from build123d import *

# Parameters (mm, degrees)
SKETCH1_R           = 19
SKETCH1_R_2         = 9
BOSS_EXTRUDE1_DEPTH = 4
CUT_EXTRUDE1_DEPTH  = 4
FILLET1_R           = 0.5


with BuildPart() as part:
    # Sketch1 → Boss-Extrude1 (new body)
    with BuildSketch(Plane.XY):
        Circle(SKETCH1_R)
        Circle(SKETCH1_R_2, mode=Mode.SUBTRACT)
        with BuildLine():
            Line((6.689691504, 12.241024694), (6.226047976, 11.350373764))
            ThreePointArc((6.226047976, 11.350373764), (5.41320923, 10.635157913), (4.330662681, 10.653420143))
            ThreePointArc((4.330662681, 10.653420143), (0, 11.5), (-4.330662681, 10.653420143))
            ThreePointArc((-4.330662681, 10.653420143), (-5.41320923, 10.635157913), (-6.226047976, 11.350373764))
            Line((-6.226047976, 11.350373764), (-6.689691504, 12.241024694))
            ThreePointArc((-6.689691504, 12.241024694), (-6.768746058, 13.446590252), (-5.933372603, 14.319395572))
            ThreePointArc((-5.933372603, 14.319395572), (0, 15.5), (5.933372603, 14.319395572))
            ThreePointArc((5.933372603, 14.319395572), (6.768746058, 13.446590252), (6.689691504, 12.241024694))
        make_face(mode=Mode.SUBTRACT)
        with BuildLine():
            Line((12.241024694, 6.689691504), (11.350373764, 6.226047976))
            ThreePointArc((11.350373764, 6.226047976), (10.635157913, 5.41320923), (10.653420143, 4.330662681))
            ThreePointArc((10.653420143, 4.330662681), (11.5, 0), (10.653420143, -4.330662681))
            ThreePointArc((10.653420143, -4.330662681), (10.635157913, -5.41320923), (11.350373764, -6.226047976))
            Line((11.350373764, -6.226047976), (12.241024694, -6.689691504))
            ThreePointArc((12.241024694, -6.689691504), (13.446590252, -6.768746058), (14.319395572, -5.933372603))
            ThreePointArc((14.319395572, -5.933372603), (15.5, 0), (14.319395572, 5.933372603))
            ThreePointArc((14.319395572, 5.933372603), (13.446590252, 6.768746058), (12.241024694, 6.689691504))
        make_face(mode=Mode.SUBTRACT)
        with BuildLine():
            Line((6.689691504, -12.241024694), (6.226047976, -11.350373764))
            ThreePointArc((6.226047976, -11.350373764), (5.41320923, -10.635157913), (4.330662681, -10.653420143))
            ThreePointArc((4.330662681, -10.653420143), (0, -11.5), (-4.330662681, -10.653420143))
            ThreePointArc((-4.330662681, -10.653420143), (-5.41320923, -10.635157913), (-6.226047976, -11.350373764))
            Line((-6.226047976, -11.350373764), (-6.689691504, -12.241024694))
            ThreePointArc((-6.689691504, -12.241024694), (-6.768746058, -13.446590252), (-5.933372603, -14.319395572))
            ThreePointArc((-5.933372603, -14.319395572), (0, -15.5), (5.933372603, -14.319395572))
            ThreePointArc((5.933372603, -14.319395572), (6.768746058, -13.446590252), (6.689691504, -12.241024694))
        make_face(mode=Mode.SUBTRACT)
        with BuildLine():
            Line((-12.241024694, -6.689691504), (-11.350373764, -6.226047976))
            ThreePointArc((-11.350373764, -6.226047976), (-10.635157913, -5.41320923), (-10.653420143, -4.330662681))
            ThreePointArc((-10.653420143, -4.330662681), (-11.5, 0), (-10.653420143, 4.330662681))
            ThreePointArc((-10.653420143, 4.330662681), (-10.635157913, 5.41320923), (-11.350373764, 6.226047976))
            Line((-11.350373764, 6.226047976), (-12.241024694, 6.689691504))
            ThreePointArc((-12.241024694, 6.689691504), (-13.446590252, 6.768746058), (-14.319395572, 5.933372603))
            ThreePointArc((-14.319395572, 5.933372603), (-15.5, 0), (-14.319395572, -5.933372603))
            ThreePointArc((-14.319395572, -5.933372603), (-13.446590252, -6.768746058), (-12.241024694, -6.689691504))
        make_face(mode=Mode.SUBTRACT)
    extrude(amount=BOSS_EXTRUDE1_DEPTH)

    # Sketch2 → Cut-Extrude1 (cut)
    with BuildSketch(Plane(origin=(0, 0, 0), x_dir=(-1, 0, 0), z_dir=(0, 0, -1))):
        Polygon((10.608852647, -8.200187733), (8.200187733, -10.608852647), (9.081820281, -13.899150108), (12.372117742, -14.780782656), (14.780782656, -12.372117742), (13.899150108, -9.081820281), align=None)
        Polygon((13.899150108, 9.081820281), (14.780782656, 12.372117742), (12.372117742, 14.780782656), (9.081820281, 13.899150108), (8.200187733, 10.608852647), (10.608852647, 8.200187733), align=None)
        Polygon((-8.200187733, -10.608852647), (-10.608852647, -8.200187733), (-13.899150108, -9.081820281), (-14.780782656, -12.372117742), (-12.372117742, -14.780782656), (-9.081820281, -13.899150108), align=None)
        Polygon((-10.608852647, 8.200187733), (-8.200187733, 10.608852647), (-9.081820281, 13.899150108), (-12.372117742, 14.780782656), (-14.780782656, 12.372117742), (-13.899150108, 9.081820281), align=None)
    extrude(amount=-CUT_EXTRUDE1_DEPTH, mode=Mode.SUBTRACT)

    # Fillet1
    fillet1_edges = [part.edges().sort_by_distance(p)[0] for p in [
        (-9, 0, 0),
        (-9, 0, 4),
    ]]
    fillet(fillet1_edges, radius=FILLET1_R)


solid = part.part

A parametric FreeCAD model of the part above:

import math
import FreeCAD as App
import Part
import Sketcher
from FreeCAD import Vector
Q = App.Units.Quantity


def edges_at(feature, points):
    """Names of the edges that pass closest to the given points."""
    edges = feature.Shape.Edges
    near = lambda p: min(range(len(edges)), key=lambda i: edges[i].distToShape(Part.Vertex(*p))[0])
    return sorted({f"Edge{near(p) + 1}" for p in points})

doc = App.newDocument("Part")
body = doc.addObject("PartDesign::Body", "Body")

# Sketch on XY plane
sketch1 = doc.addObject("Sketcher::SketchObject", "Sketch")
body.addObject(sketch1)
sketch1.AttachmentSupport = (doc.XY_Plane, [""])
sketch1.MapMode = "FlatFace"
sketch1.addGeometry(Part.Circle(Vector(0, 0, 0), Vector(0, 0, 1), 19), False)
sketch1.addGeometry(Part.LineSegment(Vector(6.2, -11.4, 0), Vector(6.7, -12.2, 0)), False)
sketch1.addGeometry(Part.ArcOfCircle(Part.Circle(Vector(5.4, -12.9, 0), Vector(0, 0, 1), 1.5), math.radians(-67), math.radians(28)), False)
sketch1.addGeometry(Part.ArcOfCircle(Part.Circle(Vector(0, 0, 0), Vector(0, 0, 1), 15.5), math.radians(-113), math.radians(-67)), False)
sketch1.addGeometry(Part.ArcOfCircle(Part.Circle(Vector(-5.4, -12.9, 0), Vector(0, 0, 1), 1.5), math.radians(152), math.radians(247)), False)
sketch1.addGeometry(Part.LineSegment(Vector(-6.7, -12.2, 0), Vector(-6.2, -11.4, 0)), False)
sketch1.addGeometry(Part.ArcOfCircle(Part.Circle(Vector(-4.9, -12, 0), Vector(0, 0, 1), 1.5), math.radians(68), math.radians(153)), False)
sketch1.addGeometry(Part.ArcOfCircle(Part.Circle(Vector(0, 0, 0), Vector(0, 0, 1), 11.5), math.radians(-112), math.radians(-68)), False)
sketch1.addGeometry(Part.ArcOfCircle(Part.Circle(Vector(4.9, -12, 0), Vector(0, 0, 1), 1.5), math.radians(27), math.radians(112)), False)
sketch1.addGeometry(Part.LineSegment(Vector(-11.4, -6.2, 0), Vector(-12.2, -6.7, 0)), False)
sketch1.addGeometry(Part.ArcOfCircle(Part.Circle(Vector(-12.9, -5.4, 0), Vector(0, 0, 1), 1.5), math.radians(-157), math.radians(-62)), False)
sketch1.addGeometry(Part.ArcOfCircle(Part.Circle(Vector(0, 0, 0), Vector(0, 0, 1), 15.5), math.radians(157), math.radians(203)), False)
sketch1.addGeometry(Part.ArcOfCircle(Part.Circle(Vector(-12.9, 5.4, 0), Vector(0, 0, 1), 1.5), math.radians(62), math.radians(157)), False)
sketch1.addGeometry(Part.LineSegment(Vector(-12.2, 6.7, 0), Vector(-11.4, 6.2, 0)), False)
sketch1.addGeometry(Part.ArcOfCircle(Part.Circle(Vector(-12, 4.9, 0), Vector(0, 0, 1), 1.5), math.radians(-22), math.radians(63)), False)
sketch1.addGeometry(Part.ArcOfCircle(Part.Circle(Vector(0, 0, 0), Vector(0, 0, 1), 11.5), math.radians(158), math.radians(202)), False)
sketch1.addGeometry(Part.ArcOfCircle(Part.Circle(Vector(-12, -4.9, 0), Vector(0, 0, 1), 1.5), math.radians(-63), math.radians(22)), False)
sketch1.addGeometry(Part.Circle(Vector(0, 0, 0), Vector(0, 0, 1), 9), False)
sketch1.addGeometry(Part.LineSegment(Vector(11.4, 6.2, 0), Vector(12.2, 6.7, 0)), False)
sketch1.addGeometry(Part.ArcOfCircle(Part.Circle(Vector(12.9, 5.4, 0), Vector(0, 0, 1), 1.5), math.radians(23), math.radians(118)), False)
sketch1.addGeometry(Part.ArcOfCircle(Part.Circle(Vector(0, 0, 0), Vector(0, 0, 1), 15.5), math.radians(-23), math.radians(23)), False)
sketch1.addGeometry(Part.ArcOfCircle(Part.Circle(Vector(12.9, -5.4, 0), Vector(0, 0, 1), 1.5), math.radians(-118), math.radians(-23)), False)
sketch1.addGeometry(Part.LineSegment(Vector(12.2, -6.7, 0), Vector(11.4, -6.2, 0)), False)
sketch1.addGeometry(Part.ArcOfCircle(Part.Circle(Vector(12, -4.9, 0), Vector(0, 0, 1), 1.5), math.radians(158), math.radians(243)), False)
sketch1.addGeometry(Part.ArcOfCircle(Part.Circle(Vector(0, 0, 0), Vector(0, 0, 1), 11.5), math.radians(-22), math.radians(22)), False)
sketch1.addGeometry(Part.ArcOfCircle(Part.Circle(Vector(12, 4.9, 0), Vector(0, 0, 1), 1.5), math.radians(117), math.radians(202)), False)
sketch1.addGeometry(Part.ArcOfCircle(Part.Circle(Vector(5.4, 12.9, 0), Vector(0, 0, 1), 1.5), math.radians(-28), math.radians(67)), False)
sketch1.addGeometry(Part.LineSegment(Vector(6.7, 12.2, 0), Vector(6.2, 11.4, 0)), False)
sketch1.addGeometry(Part.ArcOfCircle(Part.Circle(Vector(4.9, 12, 0), Vector(0, 0, 1), 1.5), math.radians(-112), math.radians(-27)), False)
sketch1.addGeometry(Part.ArcOfCircle(Part.Circle(Vector(0, 0, 0), Vector(0, 0, 1), 11.5), math.radians(68), math.radians(112)), False)
sketch1.addGeometry(Part.ArcOfCircle(Part.Circle(Vector(-4.9, 12, 0), Vector(0, 0, 1), 1.5), math.radians(-153), math.radians(-68)), False)
sketch1.addGeometry(Part.LineSegment(Vector(-6.2, 11.4, 0), Vector(-6.7, 12.2, 0)), False)
sketch1.addGeometry(Part.ArcOfCircle(Part.Circle(Vector(-5.4, 12.9, 0), Vector(0, 0, 1), 1.5), math.radians(113), math.radians(208)), False)
sketch1.addGeometry(Part.ArcOfCircle(Part.Circle(Vector(0, 0, 0), Vector(0, 0, 1), 15.5), math.radians(67), math.radians(113)), False)
sketch1.addConstraint(Sketcher.Constraint("Tangent", 1, 2, 2, 2))
sketch1.addConstraint(Sketcher.Constraint("Tangent", 2, 1, 3, 2))
sketch1.addConstraint(Sketcher.Constraint("Tangent", 3, 1, 4, 2))
sketch1.addConstraint(Sketcher.Constraint("Tangent", 4, 1, 5, 1))
sketch1.addConstraint(Sketcher.Constraint("Tangent", 5, 2, 6, 2))
sketch1.addConstraint(Sketcher.Constraint("Tangent", 6, 1, 7, 1))
sketch1.addConstraint(Sketcher.Constraint("Tangent", 7, 2, 8, 2))
sketch1.addConstraint(Sketcher.Constraint("Tangent", 8, 1, 1, 1))
sketch1.addConstraint(Sketcher.Constraint("Tangent", 9, 2, 10, 2))
sketch1.addConstraint(Sketcher.Constraint("Tangent", 10, 1, 11, 2))
sketch1.addConstraint(Sketcher.Constraint("Tangent", 11, 1, 12, 2))
sketch1.addConstraint(Sketcher.Constraint("Tangent", 12, 1, 13, 1))
sketch1.addConstraint(Sketcher.Constraint("Tangent", 13, 2, 14, 2))
sketch1.addConstraint(Sketcher.Constraint("Tangent", 14, 1, 15, 1))
sketch1.addConstraint(Sketcher.Constraint("Tangent", 15, 2, 16, 2))
sketch1.addConstraint(Sketcher.Constraint("Tangent", 16, 1, 9, 1))
sketch1.addConstraint(Sketcher.Constraint("Tangent", 18, 2, 19, 2))
sketch1.addConstraint(Sketcher.Constraint("Tangent", 19, 1, 20, 2))
sketch1.addConstraint(Sketcher.Constraint("Tangent", 20, 1, 21, 2))
sketch1.addConstraint(Sketcher.Constraint("Tangent", 21, 1, 22, 1))
sketch1.addConstraint(Sketcher.Constraint("Tangent", 22, 2, 23, 2))
sketch1.addConstraint(Sketcher.Constraint("Tangent", 23, 1, 24, 1))
sketch1.addConstraint(Sketcher.Constraint("Tangent", 24, 2, 25, 2))
sketch1.addConstraint(Sketcher.Constraint("Tangent", 25, 1, 18, 1))
sketch1.addConstraint(Sketcher.Constraint("Tangent", 26, 1, 27, 1))
sketch1.addConstraint(Sketcher.Constraint("Tangent", 27, 2, 28, 2))
sketch1.addConstraint(Sketcher.Constraint("Tangent", 28, 1, 29, 1))
sketch1.addConstraint(Sketcher.Constraint("Tangent", 29, 2, 30, 2))
sketch1.addConstraint(Sketcher.Constraint("Tangent", 30, 1, 31, 1))
sketch1.addConstraint(Sketcher.Constraint("Tangent", 31, 2, 32, 2))
sketch1.addConstraint(Sketcher.Constraint("Tangent", 32, 1, 33, 2))
sketch1.addConstraint(Sketcher.Constraint("Tangent", 33, 1, 26, 2))
sketch1.addConstraint(Sketcher.Constraint("Coincident", 0, 3, -1, 1))
sketch1.addConstraint(Sketcher.Constraint("Coincident", 3, 3, -1, 1))
sketch1.addConstraint(Sketcher.Constraint("Coincident", 7, 3, -1, 1))
sketch1.addConstraint(Sketcher.Constraint("Coincident", 11, 3, -1, 1))
sketch1.addConstraint(Sketcher.Constraint("Coincident", 15, 3, -1, 1))
sketch1.addConstraint(Sketcher.Constraint("Coincident", 17, 3, -1, 1))
sketch1.addConstraint(Sketcher.Constraint("Coincident", 20, 3, -1, 1))
sketch1.addConstraint(Sketcher.Constraint("Coincident", 24, 3, -1, 1))
sketch1.addConstraint(Sketcher.Constraint("Coincident", 29, 3, -1, 1))
sketch1.addConstraint(Sketcher.Constraint("Coincident", 33, 3, -1, 1))
sketch1.addConstraint(Sketcher.Constraint("Equal", 2, 4))
sketch1.addConstraint(Sketcher.Constraint("Equal", 4, 6))
sketch1.addConstraint(Sketcher.Constraint("Equal", 6, 8))
sketch1.addConstraint(Sketcher.Constraint("Equal", 8, 10))
sketch1.addConstraint(Sketcher.Constraint("Equal", 3, 11))
sketch1.addConstraint(Sketcher.Constraint("Equal", 10, 12))
sketch1.addConstraint(Sketcher.Constraint("Equal", 12, 14))
sketch1.addConstraint(Sketcher.Constraint("Equal", 7, 15))
sketch1.addConstraint(Sketcher.Constraint("Equal", 14, 16))
sketch1.addConstraint(Sketcher.Constraint("Equal", 16, 19))
sketch1.addConstraint(Sketcher.Constraint("Equal", 11, 20))
sketch1.addConstraint(Sketcher.Constraint("Equal", 19, 21))
sketch1.addConstraint(Sketcher.Constraint("Equal", 21, 23))
sketch1.addConstraint(Sketcher.Constraint("Equal", 15, 24))
sketch1.addConstraint(Sketcher.Constraint("Equal", 23, 25))
sketch1.addConstraint(Sketcher.Constraint("Equal", 25, 26))
sketch1.addConstraint(Sketcher.Constraint("Equal", 26, 28))
sketch1.addConstraint(Sketcher.Constraint("Equal", 24, 29))
sketch1.addConstraint(Sketcher.Constraint("Equal", 28, 30))
sketch1.addConstraint(Sketcher.Constraint("Equal", 30, 32))
sketch1.addConstraint(Sketcher.Constraint("Equal", 20, 33))
sketch1.addConstraint(Sketcher.Constraint("Symmetric", 9, 2, 18, 2, -1, 1))
sketch1.addConstraint(Sketcher.Constraint("Symmetric", 12, 1, 21, 1, -1, 1))
sketch1.addConstraint(Sketcher.Constraint("Symmetric", 4, 1, 26, 1, -1, 1))
sketch1.addConstraint(Sketcher.Constraint("Symmetric", 8, 1, 30, 1, -1, 1))
sketch1.addConstraint(Sketcher.Constraint("Symmetric", 1, 2, 4, 1, -2))
sketch1.addConstraint(Sketcher.Constraint("Symmetric", 12, 1, 18, 2, -2))
sketch1.addConstraint(Sketcher.Constraint("Perpendicular", 1, 9))
sketch1.addConstraint(Sketcher.Constraint("Diameter", 0, 38.0))
sketch1.addConstraint(Sketcher.Constraint("Diameter", 17, 18.0))
sketch1.addConstraint(Sketcher.Constraint("Radius", 2, 1.5))
sketch1.addConstraint(Sketcher.Constraint("Radius", 3, 15.5))
sketch1.addConstraint(Sketcher.Constraint("Radius", 7, 11.5))
sketch1.addConstraint(Sketcher.Constraint("Angle", 1, Q("-62.5 deg")))
sketch1.addConstraint(Sketcher.Constraint("DistanceY", 5, 2, 10, 1, 5.417001))
sketch1.addConstraint(Sketcher.Constraint("DistanceY", 2, 1, 8, 3, 2.276399))
pad1 = doc.addObject("PartDesign::Pad", "Pad")
body.addObject(pad1)
pad1.Profile = sketch1
pad1.Length = 4

# Sketch on XY plane
sketch2 = doc.addObject("Sketcher::SketchObject", "Sketch001")
body.addObject(sketch2)
sketch2.AttachmentSupport = (doc.XY_Plane, [""])
sketch2.MapMode = "FlatFace"
sketch2.addGeometry(Part.LineSegment(Vector(-10.6, -8.2, 0), Vector(-8.2, -10.6, 0)), False)
sketch2.addGeometry(Part.LineSegment(Vector(-8.2, -10.6, 0), Vector(-9.1, -13.9, 0)), False)
sketch2.addGeometry(Part.LineSegment(Vector(-9.1, -13.9, 0), Vector(-12.4, -14.8, 0)), False)
sketch2.addGeometry(Part.LineSegment(Vector(-12.4, -14.8, 0), Vector(-14.8, -12.4, 0)), False)
sketch2.addGeometry(Part.LineSegment(Vector(-14.8, -12.4, 0), Vector(-13.9, -9.1, 0)), False)
sketch2.addGeometry(Part.LineSegment(Vector(-13.9, -9.1, 0), Vector(-10.6, -8.2, 0)), False)
sketch2.addGeometry(Part.LineSegment(Vector(-13.9, 9.1, 0), Vector(-14.8, 12.4, 0)), False)
sketch2.addGeometry(Part.LineSegment(Vector(-14.8, 12.4, 0), Vector(-12.4, 14.8, 0)), False)
sketch2.addGeometry(Part.LineSegment(Vector(-12.4, 14.8, 0), Vector(-9.1, 13.9, 0)), False)
sketch2.addGeometry(Part.LineSegment(Vector(-9.1, 13.9, 0), Vector(-8.2, 10.6, 0)), False)
sketch2.addGeometry(Part.LineSegment(Vector(-8.2, 10.6, 0), Vector(-10.6, 8.2, 0)), False)
sketch2.addGeometry(Part.LineSegment(Vector(-10.6, 8.2, 0), Vector(-13.9, 9.1, 0)), False)
sketch2.addGeometry(Part.LineSegment(Vector(8.2, -10.6, 0), Vector(10.6, -8.2, 0)), False)
sketch2.addGeometry(Part.LineSegment(Vector(10.6, -8.2, 0), Vector(13.9, -9.1, 0)), False)
sketch2.addGeometry(Part.LineSegment(Vector(13.9, -9.1, 0), Vector(14.8, -12.4, 0)), False)
sketch2.addGeometry(Part.LineSegment(Vector(14.8, -12.4, 0), Vector(12.4, -14.8, 0)), False)
sketch2.addGeometry(Part.LineSegment(Vector(12.4, -14.8, 0), Vector(9.1, -13.9, 0)), False)
sketch2.addGeometry(Part.LineSegment(Vector(9.1, -13.9, 0), Vector(8.2, -10.6, 0)), False)
sketch2.addGeometry(Part.LineSegment(Vector(10.6, 8.2, 0), Vector(8.2, 10.6, 0)), False)
sketch2.addGeometry(Part.LineSegment(Vector(8.2, 10.6, 0), Vector(9.1, 13.9, 0)), False)
sketch2.addGeometry(Part.LineSegment(Vector(9.1, 13.9, 0), Vector(12.4, 14.8, 0)), False)
sketch2.addGeometry(Part.LineSegment(Vector(12.4, 14.8, 0), Vector(14.8, 12.4, 0)), False)
sketch2.addGeometry(Part.LineSegment(Vector(14.8, 12.4, 0), Vector(13.9, 9.1, 0)), False)
sketch2.addGeometry(Part.LineSegment(Vector(13.9, 9.1, 0), Vector(10.6, 8.2, 0)), False)
sketch2.addConstraint(Sketcher.Constraint("Coincident", 0, 2, 1, 1))
sketch2.addConstraint(Sketcher.Constraint("Coincident", 1, 2, 2, 1))
sketch2.addConstraint(Sketcher.Constraint("Coincident", 2, 2, 3, 1))
sketch2.addConstraint(Sketcher.Constraint("Coincident", 3, 2, 4, 1))
sketch2.addConstraint(Sketcher.Constraint("Coincident", 4, 2, 5, 1))
sketch2.addConstraint(Sketcher.Constraint("Coincident", 5, 2, 0, 1))
sketch2.addConstraint(Sketcher.Constraint("Coincident", 6, 2, 7, 1))
sketch2.addConstraint(Sketcher.Constraint("Coincident", 7, 2, 8, 1))
sketch2.addConstraint(Sketcher.Constraint("Coincident", 8, 2, 9, 1))
sketch2.addConstraint(Sketcher.Constraint("Coincident", 9, 2, 10, 1))
sketch2.addConstraint(Sketcher.Constraint("Coincident", 10, 2, 11, 1))
sketch2.addConstraint(Sketcher.Constraint("Coincident", 11, 2, 6, 1))
sketch2.addConstraint(Sketcher.Constraint("Coincident", 12, 2, 13, 1))
sketch2.addConstraint(Sketcher.Constraint("Coincident", 13, 2, 14, 1))
sketch2.addConstraint(Sketcher.Constraint("Coincident", 14, 2, 15, 1))
sketch2.addConstraint(Sketcher.Constraint("Coincident", 15, 2, 16, 1))
sketch2.addConstraint(Sketcher.Constraint("Coincident", 16, 2, 17, 1))
sketch2.addConstraint(Sketcher.Constraint("Coincident", 17, 2, 12, 1))
sketch2.addConstraint(Sketcher.Constraint("Coincident", 18, 2, 19, 1))
sketch2.addConstraint(Sketcher.Constraint("Coincident", 19, 2, 20, 1))
sketch2.addConstraint(Sketcher.Constraint("Coincident", 20, 2, 21, 1))
sketch2.addConstraint(Sketcher.Constraint("Coincident", 21, 2, 22, 1))
sketch2.addConstraint(Sketcher.Constraint("Coincident", 22, 2, 23, 1))
sketch2.addConstraint(Sketcher.Constraint("Coincident", 23, 2, 18, 1))
sketch2.addConstraint(Sketcher.Constraint("Symmetric", 10, 2, 12, 2, -1, 1))
sketch2.addConstraint(Sketcher.Constraint("Symmetric", 11, 2, 13, 2, -1, 1))
sketch2.addConstraint(Sketcher.Constraint("Symmetric", 6, 2, 14, 2, -1, 1))
sketch2.addConstraint(Sketcher.Constraint("Symmetric", 7, 2, 15, 2, -1, 1))
sketch2.addConstraint(Sketcher.Constraint("Symmetric", 8, 2, 16, 2, -1, 1))
sketch2.addConstraint(Sketcher.Constraint("Symmetric", 9, 2, 17, 2, -1, 1))
sketch2.addConstraint(Sketcher.Constraint("Symmetric", 0, 2, 18, 2, -1, 1))
sketch2.addConstraint(Sketcher.Constraint("Symmetric", 1, 2, 19, 2, -1, 1))
sketch2.addConstraint(Sketcher.Constraint("Symmetric", 2, 2, 20, 2, -1, 1))
sketch2.addConstraint(Sketcher.Constraint("Symmetric", 3, 2, 21, 2, -1, 1))
sketch2.addConstraint(Sketcher.Constraint("Symmetric", 4, 2, 22, 2, -1, 1))
sketch2.addConstraint(Sketcher.Constraint("Symmetric", 5, 2, 23, 2, -1, 1))
sketch2.addConstraint(Sketcher.Constraint("Symmetric", 5, 2, 12, 2, -2))
sketch2.addConstraint(Sketcher.Constraint("Symmetric", 4, 2, 13, 2, -2))
sketch2.addConstraint(Sketcher.Constraint("Symmetric", 3, 2, 14, 2, -2))
sketch2.addConstraint(Sketcher.Constraint("Symmetric", 2, 2, 15, 2, -2))
sketch2.addConstraint(Sketcher.Constraint("Symmetric", 1, 2, 16, 2, -2))
sketch2.addConstraint(Sketcher.Constraint("Symmetric", 0, 2, 17, 2, -2))
sketch2.addConstraint(Sketcher.Constraint("Parallel", 0, 3))
sketch2.addConstraint(Sketcher.Constraint("Parallel", 1, 4))
sketch2.addConstraint(Sketcher.Constraint("Parallel", 2, 5))
sketch2.addConstraint(Sketcher.Constraint("Perpendicular", 5, 6))
sketch2.addConstraint(Sketcher.Constraint("Perpendicular", 3, 7))
sketch2.addConstraint(Sketcher.Constraint("Equal", 0, 1))
sketch2.addConstraint(Sketcher.Constraint("Equal", 1, 2))
sketch2.addConstraint(Sketcher.Constraint("Equal", 2, 3))
sketch2.addConstraint(Sketcher.Constraint("Angle", 1, Q("-105 deg")))
sketch2.addConstraint(Sketcher.Constraint("DistanceY", 3, 2, 7, 2, 27.1529))
sketch2.addConstraint(Sketcher.Constraint("DistanceX", 1, 2, -1, 1, 9.08182))
sketch2.addConstraint(Sketcher.Constraint("DistanceY", 1, 2, -1, 1, 13.89915))
pocket1 = doc.addObject("PartDesign::Pocket", "Pocket")
body.addObject(pocket1)
pocket1.Profile = sketch2
pocket1.Length = 4
pocket1.Reversed = True
doc.recompute()

fillet = doc.addObject("PartDesign::Fillet", "Fillet")
body.addObject(fillet)
fillet.Base = (pocket1, edges_at(pocket1, [(-9, 0, 0), (-9, 0, 4)]))
fillet.Radius = 0.5

doc.recompute()
